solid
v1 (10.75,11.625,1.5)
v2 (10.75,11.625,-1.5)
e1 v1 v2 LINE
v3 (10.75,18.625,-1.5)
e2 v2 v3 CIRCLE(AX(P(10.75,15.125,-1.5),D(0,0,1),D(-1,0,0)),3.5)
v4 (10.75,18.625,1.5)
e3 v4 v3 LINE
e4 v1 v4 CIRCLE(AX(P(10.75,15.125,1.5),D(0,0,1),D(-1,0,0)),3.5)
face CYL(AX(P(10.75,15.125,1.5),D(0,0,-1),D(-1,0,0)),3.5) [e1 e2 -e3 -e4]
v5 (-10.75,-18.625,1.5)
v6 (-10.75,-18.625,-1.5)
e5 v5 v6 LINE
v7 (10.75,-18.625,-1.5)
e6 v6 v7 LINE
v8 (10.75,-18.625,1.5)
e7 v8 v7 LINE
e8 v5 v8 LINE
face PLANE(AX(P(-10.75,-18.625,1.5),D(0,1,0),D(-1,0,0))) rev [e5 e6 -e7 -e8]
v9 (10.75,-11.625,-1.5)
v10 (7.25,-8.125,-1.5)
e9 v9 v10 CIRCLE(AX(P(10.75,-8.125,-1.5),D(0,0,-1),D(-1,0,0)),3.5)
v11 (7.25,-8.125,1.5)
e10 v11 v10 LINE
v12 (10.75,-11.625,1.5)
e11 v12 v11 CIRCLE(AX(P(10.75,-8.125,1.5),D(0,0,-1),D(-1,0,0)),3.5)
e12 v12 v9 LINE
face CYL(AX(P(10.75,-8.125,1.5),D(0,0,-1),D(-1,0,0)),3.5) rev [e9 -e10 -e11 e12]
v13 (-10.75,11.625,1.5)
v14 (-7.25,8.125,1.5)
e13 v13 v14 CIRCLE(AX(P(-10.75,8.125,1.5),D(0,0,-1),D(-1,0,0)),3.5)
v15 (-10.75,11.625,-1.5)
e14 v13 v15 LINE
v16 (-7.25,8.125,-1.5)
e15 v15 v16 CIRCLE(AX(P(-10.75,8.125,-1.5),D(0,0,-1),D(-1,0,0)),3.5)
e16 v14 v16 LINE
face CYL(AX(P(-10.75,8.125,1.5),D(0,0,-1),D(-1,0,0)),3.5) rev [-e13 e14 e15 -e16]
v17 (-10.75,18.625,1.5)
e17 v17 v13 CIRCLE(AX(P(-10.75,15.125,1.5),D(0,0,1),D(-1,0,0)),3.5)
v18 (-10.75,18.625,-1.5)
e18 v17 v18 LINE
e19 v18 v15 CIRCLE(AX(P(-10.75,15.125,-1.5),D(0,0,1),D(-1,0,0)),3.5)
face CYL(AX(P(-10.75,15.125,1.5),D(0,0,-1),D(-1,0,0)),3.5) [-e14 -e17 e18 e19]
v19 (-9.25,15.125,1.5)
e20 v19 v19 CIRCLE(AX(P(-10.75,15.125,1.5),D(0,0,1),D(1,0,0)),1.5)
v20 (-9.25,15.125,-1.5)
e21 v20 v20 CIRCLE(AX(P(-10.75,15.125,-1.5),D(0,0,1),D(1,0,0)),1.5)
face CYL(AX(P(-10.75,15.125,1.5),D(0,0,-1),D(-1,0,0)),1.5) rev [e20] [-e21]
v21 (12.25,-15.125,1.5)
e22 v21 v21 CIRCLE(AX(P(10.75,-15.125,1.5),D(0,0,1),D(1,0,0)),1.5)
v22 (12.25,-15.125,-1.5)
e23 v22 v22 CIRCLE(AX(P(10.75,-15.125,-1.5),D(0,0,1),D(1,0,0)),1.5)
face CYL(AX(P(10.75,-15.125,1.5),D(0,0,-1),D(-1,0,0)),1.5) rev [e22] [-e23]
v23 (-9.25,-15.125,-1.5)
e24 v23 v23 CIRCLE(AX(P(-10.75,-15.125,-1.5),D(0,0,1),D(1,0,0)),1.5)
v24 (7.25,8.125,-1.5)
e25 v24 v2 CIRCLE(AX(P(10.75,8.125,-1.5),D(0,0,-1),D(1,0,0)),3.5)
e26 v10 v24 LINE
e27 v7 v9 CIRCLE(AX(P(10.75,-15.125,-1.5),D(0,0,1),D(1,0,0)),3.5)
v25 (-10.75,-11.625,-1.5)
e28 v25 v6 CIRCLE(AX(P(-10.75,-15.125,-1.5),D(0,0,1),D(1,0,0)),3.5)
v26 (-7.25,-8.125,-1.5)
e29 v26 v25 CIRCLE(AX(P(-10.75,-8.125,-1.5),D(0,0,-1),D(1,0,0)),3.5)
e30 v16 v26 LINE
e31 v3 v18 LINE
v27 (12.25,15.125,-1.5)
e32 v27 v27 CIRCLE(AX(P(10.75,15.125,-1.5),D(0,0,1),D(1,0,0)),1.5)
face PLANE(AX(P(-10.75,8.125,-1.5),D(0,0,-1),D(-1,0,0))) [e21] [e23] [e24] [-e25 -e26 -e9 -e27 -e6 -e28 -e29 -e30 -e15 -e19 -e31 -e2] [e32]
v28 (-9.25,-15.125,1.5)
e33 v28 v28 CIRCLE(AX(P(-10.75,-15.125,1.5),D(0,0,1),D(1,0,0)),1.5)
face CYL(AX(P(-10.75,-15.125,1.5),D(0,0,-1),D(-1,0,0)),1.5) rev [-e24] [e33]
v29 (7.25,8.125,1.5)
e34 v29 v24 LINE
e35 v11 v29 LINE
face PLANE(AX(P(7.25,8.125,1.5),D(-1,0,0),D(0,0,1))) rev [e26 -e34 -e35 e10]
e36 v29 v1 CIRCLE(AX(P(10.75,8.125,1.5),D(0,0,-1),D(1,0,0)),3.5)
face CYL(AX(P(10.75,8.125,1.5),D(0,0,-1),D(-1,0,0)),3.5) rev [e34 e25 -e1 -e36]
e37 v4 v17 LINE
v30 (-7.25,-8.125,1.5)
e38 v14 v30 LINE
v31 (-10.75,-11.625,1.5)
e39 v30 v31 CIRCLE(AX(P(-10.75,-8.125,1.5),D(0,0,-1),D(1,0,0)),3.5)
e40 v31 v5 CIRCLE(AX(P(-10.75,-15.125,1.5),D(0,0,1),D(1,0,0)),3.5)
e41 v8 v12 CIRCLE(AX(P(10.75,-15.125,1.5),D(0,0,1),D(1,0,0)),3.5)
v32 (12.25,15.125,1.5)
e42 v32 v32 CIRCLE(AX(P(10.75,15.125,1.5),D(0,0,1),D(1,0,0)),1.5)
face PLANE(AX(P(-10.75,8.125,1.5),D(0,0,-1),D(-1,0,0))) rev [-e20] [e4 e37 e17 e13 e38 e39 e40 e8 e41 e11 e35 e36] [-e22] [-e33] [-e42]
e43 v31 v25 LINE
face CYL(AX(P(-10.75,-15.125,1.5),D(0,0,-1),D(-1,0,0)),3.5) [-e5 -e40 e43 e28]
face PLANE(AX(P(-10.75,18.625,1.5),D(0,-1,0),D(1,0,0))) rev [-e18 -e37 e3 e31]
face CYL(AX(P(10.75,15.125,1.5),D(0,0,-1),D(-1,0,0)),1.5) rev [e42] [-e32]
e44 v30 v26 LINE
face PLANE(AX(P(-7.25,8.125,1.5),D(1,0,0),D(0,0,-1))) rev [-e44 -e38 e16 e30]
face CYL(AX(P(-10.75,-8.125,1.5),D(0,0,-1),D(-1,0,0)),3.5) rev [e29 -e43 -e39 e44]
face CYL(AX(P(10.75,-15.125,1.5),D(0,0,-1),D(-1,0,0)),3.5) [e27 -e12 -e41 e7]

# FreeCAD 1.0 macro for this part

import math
import FreeCAD as App
import Part
import Sketcher
from FreeCAD import Vector

doc = App.newDocument("Part")
body = doc.addObject("PartDesign::Body", "Body")

sketch1 = body.newObject("Sketcher::SketchObject", "Sketch")
sketch1.AttachmentSupport = (doc.getObject("XY_Plane"), [""])
sketch1.MapMode = "FlatFace"
sketch1.addGeometry(Part.LineSegment(Vector(10.8, 18.6, 0), Vector(-10.8, 18.6, 0)), False)
sketch1.addGeometry(Part.ArcOfCircle(Part.Circle(Vector(-10.8, 15.1, 0), Vector(0, 0, 1), 3.5), math.radians(90), math.radians(270)), False)
sketch1.addGeometry(Part.ArcOfCircle(Part.Circle(Vector(-10.8, 8.1, 0), Vector(0, 0, 1), 3.5), math.radians(0), math.radians(90)), False)
sketch1.addGeometry(Part.LineSegment(Vector(-7.2, 8.1, 0), Vector(-7.2, -8.1, 0)), False)
sketch1.addGeometry(Part.ArcOfCircle(Part.Circle(Vector(-10.8, -8.1, 0), Vector(0, 0, 1), 3.5), math.radians(-90), math.radians(0)), False)
sketch1.addGeometry(Part.ArcOfCircle(Part.Circle(Vector(-10.8, -15.1, 0), Vector(0, 0, 1), 3.5), math.radians(90), math.radians(270)), False)
sketch1.addGeometry(Part.LineSegment(Vector(-10.8, -18.6, 0), Vector(10.8, -18.6, 0)), False)
sketch1.addGeometry(Part.ArcOfCircle(Part.Circle(Vector(10.8, -15.1, 0), Vector(0, 0, 1), 3.5), math.radians(-90), math.radians(90)), False)
sketch1.addGeometry(Part.ArcOfCircle(Part.Circle(Vector(10.8, -8.1, 0), Vector(0, 0, 1), 3.5), math.radians(-180), math.radians(-90)), False)
sketch1.addGeometry(Part.LineSegment(Vector(7.2, -8.1, 0), Vector(7.2, 8.1, 0)), False)
sketch1.addGeometry(Part.ArcOfCircle(Part.Circle(Vector(10.8, 8.1, 0), Vector(0, 0, 1), 3.5), math.radians(90), math.radians(180)), False)
sketch1.addGeometry(Part.ArcOfCircle(Part.Circle(Vector(10.8, 15.1, 0), Vector(0, 0, 1), 3.5), math.radians(-90), math.radians(90)), False)
sketch1.addGeometry(Part.Circle(Vector(10.8, -15.1, 0), Vector(0, 0, 1), 1.5), False)
sketch1.addGeometry(Part.Circle(Vector(-10.8, -15.1, 0), Vector(0, 0, 1), 1.5), False)
sketch1.addGeometry(Part.Circle(Vector(10.8, 15.1, 0), Vector(0, 0, 1), 1.5), False)
sketch1.addGeometry(Part.Circle(Vector(-10.8, 15.1, 0), Vector(0, 0, 1), 1.5), False)
sketch1.addConstraint(Sketcher.Constraint("Tangent", 0, 2, 1, 1))
sketch1.addConstraint(Sketcher.Constraint("Tangent", 1, 2, 2, 2))
sketch1.addConstraint(Sketcher.Constraint("Tangent", 2, 1, 3, 1))
sketch1.addConstraint(Sketcher.Constraint("Tangent", 3, 2, 4, 2))
sketch1.addConstraint(Sketcher.Constraint("Tangent", 4, 1, 5, 1))
sketch1.addConstraint(Sketcher.Constraint("Tangent", 5, 2, 6, 1))
sketch1.addConstraint(Sketcher.Constraint("Tangent", 6, 2, 7, 1))
sketch1.addConstraint(Sketcher.Constraint("Tangent", 7, 2, 8, 2))
sketch1.addConstraint(Sketcher.Constraint("Tangent", 8, 1, 9, 1))
sketch1.addConstraint(Sketcher.Constraint("Tangent", 9, 2, 10, 2))
sketch1.addConstraint(Sketcher.Constraint("Tangent", 10, 1, 11, 1))
sketch1.addConstraint(Sketcher.Constraint("Tangent", 11, 2, 0, 1))
sketch1.addConstraint(Sketcher.Constraint("Horizontal", 0))
sketch1.addConstraint(Sketcher.Constraint("Vertical", 3))
sketch1.addConstraint(Sketcher.Constraint("Horizontal", 6))
sketch1.addConstraint(Sketcher.Constraint("Vertical", 9))
sketch1.addConstraint(Sketcher.Constraint("Coincident", 12, 3, 7, 3))
sketch1.addConstraint(Sketcher.Constraint("Coincident", 13, 3, 5, 3))
sketch1.addConstraint(Sketcher.Constraint("Coincident", 14, 3, 11, 3))
sketch1.addConstraint(Sketcher.Constraint("Coincident", 15, 3, 1, 3))
sketch1.addConstraint(Sketcher.Constraint("Equal", 1, 2))
sketch1.addConstraint(Sketcher.Constraint("Equal", 2, 4))
sketch1.addConstraint(Sketcher.Constraint("Equal", 4, 5))
sketch1.addConstraint(Sketcher.Constraint("Equal", 5, 7))
sketch1.addConstraint(Sketcher.Constraint("Equal", 7, 8))
sketch1.addConstraint(Sketcher.Constraint("Equal", 8, 10))
sketch1.addConstraint(Sketcher.Constraint("Equal", 10, 11))
sketch1.addConstraint(Sketcher.Constraint("Equal", 12, 13))
sketch1.addConstraint(Sketcher.Constraint("Equal", 13, 14))
sketch1.addConstraint(Sketcher.Constraint("Equal", 14, 15))
sketch1.addConstraint(Sketcher.Constraint("Symmetric", 1, 3, 7, 3, -1, 1))
sketch1.addConstraint(Sketcher.Constraint("Vertical", 1, 3, 2, 3))
sketch1.addConstraint(Sketcher.Constraint("Vertical", 4, 3, 5, 3))
sketch1.addConstraint(Sketcher.Constraint("Vertical", 7, 3, 8, 3))
sketch1.addConstraint(Sketcher.Constraint("Vertical", 10, 3, 11, 3))
sketch1.addConstraint(Sketcher.Constraint("Diameter", 12, 3.0))
sketch1.addConstraint(Sketcher.Constraint("Radius", 1, 3.5))
sketch1.addConstraint(Sketcher.Constraint("DistanceX", 0, 2, 0, 1, 21.5))
sketch1.addConstraint(Sketcher.Constraint("DistanceY", 3, 2, 3, 1, 16.25))
pad1 = body.newObject("PartDesign::Pad", "Pad")
pad1.Profile = sketch1
pad1.Length = 3
pad1.Midplane = True

doc.recompute()
